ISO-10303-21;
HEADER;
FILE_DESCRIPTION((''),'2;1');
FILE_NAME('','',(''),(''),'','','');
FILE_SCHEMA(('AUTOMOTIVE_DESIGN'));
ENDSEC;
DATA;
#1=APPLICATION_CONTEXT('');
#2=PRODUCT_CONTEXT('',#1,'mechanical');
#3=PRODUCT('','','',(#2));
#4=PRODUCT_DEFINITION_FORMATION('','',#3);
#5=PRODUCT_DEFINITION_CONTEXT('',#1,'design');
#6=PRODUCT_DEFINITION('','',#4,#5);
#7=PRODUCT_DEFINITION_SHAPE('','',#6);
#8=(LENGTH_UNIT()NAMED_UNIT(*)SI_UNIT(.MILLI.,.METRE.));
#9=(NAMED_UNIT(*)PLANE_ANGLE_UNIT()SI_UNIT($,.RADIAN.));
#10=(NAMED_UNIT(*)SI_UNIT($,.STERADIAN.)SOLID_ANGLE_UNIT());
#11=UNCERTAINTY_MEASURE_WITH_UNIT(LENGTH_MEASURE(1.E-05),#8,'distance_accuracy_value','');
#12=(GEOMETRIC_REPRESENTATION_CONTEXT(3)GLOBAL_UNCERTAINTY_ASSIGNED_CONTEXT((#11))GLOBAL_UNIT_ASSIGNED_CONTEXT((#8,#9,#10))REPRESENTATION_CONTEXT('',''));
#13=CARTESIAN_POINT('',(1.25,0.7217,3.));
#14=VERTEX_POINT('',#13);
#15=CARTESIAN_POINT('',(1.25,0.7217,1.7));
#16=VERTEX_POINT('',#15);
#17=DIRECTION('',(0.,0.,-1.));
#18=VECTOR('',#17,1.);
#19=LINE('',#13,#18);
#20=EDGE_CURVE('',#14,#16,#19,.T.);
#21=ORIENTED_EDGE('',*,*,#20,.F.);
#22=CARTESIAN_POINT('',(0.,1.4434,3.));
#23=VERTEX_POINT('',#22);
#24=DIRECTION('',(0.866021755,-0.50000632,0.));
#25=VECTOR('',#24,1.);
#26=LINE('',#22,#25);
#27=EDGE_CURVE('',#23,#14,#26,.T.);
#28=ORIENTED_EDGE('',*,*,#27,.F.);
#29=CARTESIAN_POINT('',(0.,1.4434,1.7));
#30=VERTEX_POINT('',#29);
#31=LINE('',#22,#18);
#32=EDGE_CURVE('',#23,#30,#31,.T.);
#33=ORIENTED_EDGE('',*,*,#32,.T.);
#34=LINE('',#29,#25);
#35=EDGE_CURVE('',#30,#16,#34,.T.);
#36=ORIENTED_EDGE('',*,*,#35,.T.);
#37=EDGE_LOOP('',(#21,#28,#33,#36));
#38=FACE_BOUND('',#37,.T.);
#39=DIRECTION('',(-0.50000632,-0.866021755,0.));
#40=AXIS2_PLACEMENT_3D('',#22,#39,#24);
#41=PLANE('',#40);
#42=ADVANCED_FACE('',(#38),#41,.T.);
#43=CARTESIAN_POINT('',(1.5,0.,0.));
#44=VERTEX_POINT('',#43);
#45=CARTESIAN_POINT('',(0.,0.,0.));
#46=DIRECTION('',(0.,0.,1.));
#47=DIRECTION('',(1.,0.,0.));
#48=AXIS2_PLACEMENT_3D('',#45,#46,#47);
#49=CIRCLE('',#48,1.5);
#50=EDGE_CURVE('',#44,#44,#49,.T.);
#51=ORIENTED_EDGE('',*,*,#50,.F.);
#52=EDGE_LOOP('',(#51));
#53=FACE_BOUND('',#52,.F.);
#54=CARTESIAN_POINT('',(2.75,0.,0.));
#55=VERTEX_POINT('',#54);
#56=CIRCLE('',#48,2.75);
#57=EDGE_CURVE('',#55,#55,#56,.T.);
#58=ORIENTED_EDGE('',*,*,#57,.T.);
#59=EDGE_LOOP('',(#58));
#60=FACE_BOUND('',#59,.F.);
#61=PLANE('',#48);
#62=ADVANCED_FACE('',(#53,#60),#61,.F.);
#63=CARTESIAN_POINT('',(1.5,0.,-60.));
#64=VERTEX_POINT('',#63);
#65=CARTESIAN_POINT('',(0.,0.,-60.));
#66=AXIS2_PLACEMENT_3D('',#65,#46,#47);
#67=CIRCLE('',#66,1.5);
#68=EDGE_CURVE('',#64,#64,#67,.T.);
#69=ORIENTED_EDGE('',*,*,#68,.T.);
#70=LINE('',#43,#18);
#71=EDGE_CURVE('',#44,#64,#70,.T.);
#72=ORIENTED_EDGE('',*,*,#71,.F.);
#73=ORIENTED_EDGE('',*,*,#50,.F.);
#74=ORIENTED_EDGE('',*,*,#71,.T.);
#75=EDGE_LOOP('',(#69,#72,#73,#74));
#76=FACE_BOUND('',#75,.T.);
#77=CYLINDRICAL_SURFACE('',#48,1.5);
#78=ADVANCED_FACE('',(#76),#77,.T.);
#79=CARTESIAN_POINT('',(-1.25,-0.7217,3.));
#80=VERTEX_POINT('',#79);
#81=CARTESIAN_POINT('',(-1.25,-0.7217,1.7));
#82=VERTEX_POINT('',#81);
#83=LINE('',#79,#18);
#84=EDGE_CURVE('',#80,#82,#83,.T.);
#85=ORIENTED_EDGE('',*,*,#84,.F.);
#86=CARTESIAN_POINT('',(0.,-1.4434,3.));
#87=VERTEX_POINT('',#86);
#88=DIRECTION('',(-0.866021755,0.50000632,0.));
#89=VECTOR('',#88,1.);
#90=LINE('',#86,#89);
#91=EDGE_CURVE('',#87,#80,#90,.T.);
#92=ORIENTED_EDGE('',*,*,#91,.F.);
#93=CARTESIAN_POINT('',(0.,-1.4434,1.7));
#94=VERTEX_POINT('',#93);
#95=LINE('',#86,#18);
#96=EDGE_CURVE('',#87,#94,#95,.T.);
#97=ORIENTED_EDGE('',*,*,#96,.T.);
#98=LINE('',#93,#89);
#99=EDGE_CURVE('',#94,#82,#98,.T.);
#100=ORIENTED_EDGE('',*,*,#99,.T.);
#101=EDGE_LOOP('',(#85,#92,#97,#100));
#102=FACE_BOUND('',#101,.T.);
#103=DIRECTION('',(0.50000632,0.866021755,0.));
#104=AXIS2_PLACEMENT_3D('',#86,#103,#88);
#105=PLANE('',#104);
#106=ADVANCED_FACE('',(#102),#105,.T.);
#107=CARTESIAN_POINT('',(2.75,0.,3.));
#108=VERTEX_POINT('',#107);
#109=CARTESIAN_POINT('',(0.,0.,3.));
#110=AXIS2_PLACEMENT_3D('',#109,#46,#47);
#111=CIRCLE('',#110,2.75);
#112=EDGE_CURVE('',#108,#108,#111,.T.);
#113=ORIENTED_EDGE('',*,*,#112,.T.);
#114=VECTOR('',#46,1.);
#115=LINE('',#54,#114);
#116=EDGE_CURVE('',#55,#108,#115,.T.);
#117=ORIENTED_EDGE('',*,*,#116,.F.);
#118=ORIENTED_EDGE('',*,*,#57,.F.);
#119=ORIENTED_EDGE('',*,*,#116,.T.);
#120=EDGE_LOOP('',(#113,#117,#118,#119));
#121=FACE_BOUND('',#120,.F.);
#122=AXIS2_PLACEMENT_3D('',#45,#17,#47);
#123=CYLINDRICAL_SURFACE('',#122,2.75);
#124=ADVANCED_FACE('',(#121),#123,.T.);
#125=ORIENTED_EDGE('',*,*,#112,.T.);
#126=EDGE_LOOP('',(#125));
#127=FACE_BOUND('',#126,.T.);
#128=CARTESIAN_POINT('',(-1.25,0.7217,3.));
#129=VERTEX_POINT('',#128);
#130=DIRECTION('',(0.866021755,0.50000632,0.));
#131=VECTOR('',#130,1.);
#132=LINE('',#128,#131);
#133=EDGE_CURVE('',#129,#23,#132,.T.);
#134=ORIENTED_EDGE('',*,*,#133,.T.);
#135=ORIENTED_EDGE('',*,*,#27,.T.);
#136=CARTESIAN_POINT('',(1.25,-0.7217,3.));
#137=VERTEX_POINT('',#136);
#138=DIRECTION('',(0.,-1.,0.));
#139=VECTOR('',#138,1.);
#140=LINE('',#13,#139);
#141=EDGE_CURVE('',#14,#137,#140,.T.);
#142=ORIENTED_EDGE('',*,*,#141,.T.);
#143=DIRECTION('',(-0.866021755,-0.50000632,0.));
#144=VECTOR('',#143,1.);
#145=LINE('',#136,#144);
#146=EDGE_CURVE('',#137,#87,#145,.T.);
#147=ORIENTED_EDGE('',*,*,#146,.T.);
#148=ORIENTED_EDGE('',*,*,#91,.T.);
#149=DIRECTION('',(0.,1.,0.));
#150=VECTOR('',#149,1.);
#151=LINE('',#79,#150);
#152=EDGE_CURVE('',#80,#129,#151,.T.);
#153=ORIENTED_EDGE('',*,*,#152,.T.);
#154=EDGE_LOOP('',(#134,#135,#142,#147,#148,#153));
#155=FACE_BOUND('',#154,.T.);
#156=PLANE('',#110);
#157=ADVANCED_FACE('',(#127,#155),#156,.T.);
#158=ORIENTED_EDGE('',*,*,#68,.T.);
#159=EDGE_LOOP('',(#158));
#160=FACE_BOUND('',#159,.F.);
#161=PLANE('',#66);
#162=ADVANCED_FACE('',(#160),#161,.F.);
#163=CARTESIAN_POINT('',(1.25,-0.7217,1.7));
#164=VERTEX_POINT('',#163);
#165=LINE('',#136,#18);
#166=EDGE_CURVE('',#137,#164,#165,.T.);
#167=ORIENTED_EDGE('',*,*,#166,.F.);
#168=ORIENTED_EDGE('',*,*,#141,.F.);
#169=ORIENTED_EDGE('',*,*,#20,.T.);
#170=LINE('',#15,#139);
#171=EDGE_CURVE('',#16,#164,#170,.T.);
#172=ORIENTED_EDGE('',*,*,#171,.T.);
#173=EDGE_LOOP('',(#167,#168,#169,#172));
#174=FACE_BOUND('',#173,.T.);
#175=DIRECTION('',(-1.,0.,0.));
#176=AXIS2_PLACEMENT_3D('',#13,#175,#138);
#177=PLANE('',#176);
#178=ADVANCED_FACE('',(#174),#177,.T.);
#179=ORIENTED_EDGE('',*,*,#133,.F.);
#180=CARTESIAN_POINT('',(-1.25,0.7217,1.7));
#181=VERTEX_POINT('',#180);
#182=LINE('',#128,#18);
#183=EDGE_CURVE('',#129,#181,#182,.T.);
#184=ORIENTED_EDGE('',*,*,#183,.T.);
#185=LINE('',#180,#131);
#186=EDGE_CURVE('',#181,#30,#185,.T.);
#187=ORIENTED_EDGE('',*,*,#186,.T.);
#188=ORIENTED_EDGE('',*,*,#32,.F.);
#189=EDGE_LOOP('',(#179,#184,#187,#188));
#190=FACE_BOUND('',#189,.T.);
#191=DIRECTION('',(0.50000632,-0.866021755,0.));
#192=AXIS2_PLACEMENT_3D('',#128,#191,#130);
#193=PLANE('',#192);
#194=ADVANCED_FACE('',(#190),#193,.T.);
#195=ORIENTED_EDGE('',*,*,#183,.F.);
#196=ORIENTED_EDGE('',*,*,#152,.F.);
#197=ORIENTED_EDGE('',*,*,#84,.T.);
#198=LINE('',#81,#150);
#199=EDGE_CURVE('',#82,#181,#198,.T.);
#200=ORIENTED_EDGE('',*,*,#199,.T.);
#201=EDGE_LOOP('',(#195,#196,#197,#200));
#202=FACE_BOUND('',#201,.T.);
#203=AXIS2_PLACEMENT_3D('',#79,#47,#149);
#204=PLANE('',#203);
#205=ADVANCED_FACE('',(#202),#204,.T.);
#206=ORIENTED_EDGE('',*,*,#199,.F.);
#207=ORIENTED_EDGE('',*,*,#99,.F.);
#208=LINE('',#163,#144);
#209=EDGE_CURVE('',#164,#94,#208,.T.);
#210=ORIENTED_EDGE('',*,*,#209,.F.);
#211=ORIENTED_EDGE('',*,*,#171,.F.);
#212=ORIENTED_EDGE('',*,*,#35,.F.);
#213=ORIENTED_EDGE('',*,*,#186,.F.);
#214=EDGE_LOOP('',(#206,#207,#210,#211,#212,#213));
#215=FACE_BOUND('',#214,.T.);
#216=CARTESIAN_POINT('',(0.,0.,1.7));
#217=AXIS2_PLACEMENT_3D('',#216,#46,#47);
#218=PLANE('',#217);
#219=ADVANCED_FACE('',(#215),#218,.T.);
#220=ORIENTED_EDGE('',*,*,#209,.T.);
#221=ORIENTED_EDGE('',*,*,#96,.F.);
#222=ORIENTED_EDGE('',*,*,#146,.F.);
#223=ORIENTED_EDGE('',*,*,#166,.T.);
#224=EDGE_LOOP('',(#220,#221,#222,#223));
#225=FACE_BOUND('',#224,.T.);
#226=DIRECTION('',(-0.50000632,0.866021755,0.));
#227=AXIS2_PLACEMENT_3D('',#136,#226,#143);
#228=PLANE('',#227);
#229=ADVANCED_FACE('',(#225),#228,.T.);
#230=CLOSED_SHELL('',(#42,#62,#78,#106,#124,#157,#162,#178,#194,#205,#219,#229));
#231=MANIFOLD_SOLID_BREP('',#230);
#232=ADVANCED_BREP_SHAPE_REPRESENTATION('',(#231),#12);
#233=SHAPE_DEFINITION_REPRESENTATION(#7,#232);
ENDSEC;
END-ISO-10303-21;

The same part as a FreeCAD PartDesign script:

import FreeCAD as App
import Part
import Sketcher

V = App.Vector
Q = App.Units.Quantity

doc = App.newDocument("Part")
body = doc.addObject("PartDesign::Body", "Body")

sketch1 = body.newObject("Sketcher::SketchObject", "Sketch")
sketch1.AttachmentSupport = (doc.getObject("XY_Plane"), [""])
sketch1.MapMode = "FlatFace"
sketch1.addGeometry(Part.Circle(V(0, 0, 0), V(0, 0, 1), 1.5), False)
sketch1.addConstraint(Sketcher.Constraint("Coincident", 0, 3, -1, 1))
sketch1.addConstraint(Sketcher.Constraint("Diameter", 0, 3.0))
pad1 = body.newObject("PartDesign::Pad", "Pad")
pad1.Profile = sketch1
pad1.Length = 60
pad1.Reversed = True

sketch2 = body.newObject("Sketcher::SketchObject", "Sketch001")
sketch2.AttachmentSupport = (doc.getObject("XY_Plane"), [""])
sketch2.MapMode = "FlatFace"
sketch2.addGeometry(Part.Circle(V(0, 0, 0), V(0, 0, 1), 2.8), False)
sketch2.addConstraint(Sketcher.Constraint("Coincident", 0, 3, -1, 1))
sketch2.addConstraint(Sketcher.Constraint("Diameter", 0, 5.5))
pad2 = body.newObject("PartDesign::Pad", "Pad001")
pad2.Profile = sketch2
pad2.Length = 3

sketch3 = body.newObject("Sketcher::SketchObject", "Sketch002")
sketch3.AttachmentSupport = (doc.getObject("XY_Plane"), [""])
sketch3.MapMode = "FlatFace"
sketch3.AttachmentOffset = App.Placement(V(0, 0, 3), App.Rotation())
sketch3.addGeometry(Part.LineSegment(V(1.2, 0.7, 0), V(0, 1.4, 0)), False)
sketch3.addGeometry(Part.LineSegment(V(0, 1.4, 0), V(-1.2, 0.7, 0)), False)
sketch3.addGeometry(Part.LineSegment(V(-1.2, 0.7, 0), V(-1.2, -0.7, 0)), False)
sketch3.addGeometry(Part.LineSegment(V(-1.2, -0.7, 0), V(0, -1.4, 0)), False)
sketch3.addGeometry(Part.LineSegment(V(0, -1.4, 0), V(1.2, -0.7, 0)), False)
sketch3.addGeometry(Part.LineSegment(V(1.2, -0.7, 0), V(1.2, 0.7, 0)), False)
sketch3.addConstraint(Sketcher.Constraint("Coincident", 0, 2, 1, 1))
sketch3.addConstraint(Sketcher.Constraint("Coincident", 1, 2, 2, 1))
sketch3.addConstraint(Sketcher.Constraint("Coincident", 2, 2, 3, 1))
sketch3.addConstraint(Sketcher.Constraint("Coincident", 3, 2, 4, 1))
sketch3.addConstraint(Sketcher.Constraint("Coincident", 4, 2, 5, 1))
sketch3.addConstraint(Sketcher.Constraint("Coincident", 5, 2, 0, 1))
sketch3.addConstraint(Sketcher.Constraint("Vertical", 2))
sketch3.addConstraint(Sketcher.Constraint("Vertical", 5))
sketch3.addConstraint(Sketcher.Constraint("Symmetric", 0, 2, 3, 2, -1, 1))
sketch3.addConstraint(Sketcher.Constraint("Symmetric", 1, 2, 4, 2, -1, 1))
sketch3.addConstraint(Sketcher.Constraint("PointOnObject", 0, 2, -2))
sketch3.addConstraint(Sketcher.Constraint("Parallel", 0, 3))
sketch3.addConstraint(Sketcher.Constraint("Horizontal", 2, 2, 4, 2))
sketch3.addConstraint(Sketcher.Constraint("DistanceX", 2, 2, 4, 2, 2.5))
sketch3.addConstraint(Sketcher.Constraint("Angle", 0, Q("149.9996 deg")))
sketch3.addConstraint(Sketcher.Constraint("DistanceY", 2, 2, 2, 1, 1.4434))
pocket1 = body.newObject("PartDesign::Pocket", "Pocket")
pocket1.Profile = sketch3
pocket1.Length = 1.3

doc.recompute()
